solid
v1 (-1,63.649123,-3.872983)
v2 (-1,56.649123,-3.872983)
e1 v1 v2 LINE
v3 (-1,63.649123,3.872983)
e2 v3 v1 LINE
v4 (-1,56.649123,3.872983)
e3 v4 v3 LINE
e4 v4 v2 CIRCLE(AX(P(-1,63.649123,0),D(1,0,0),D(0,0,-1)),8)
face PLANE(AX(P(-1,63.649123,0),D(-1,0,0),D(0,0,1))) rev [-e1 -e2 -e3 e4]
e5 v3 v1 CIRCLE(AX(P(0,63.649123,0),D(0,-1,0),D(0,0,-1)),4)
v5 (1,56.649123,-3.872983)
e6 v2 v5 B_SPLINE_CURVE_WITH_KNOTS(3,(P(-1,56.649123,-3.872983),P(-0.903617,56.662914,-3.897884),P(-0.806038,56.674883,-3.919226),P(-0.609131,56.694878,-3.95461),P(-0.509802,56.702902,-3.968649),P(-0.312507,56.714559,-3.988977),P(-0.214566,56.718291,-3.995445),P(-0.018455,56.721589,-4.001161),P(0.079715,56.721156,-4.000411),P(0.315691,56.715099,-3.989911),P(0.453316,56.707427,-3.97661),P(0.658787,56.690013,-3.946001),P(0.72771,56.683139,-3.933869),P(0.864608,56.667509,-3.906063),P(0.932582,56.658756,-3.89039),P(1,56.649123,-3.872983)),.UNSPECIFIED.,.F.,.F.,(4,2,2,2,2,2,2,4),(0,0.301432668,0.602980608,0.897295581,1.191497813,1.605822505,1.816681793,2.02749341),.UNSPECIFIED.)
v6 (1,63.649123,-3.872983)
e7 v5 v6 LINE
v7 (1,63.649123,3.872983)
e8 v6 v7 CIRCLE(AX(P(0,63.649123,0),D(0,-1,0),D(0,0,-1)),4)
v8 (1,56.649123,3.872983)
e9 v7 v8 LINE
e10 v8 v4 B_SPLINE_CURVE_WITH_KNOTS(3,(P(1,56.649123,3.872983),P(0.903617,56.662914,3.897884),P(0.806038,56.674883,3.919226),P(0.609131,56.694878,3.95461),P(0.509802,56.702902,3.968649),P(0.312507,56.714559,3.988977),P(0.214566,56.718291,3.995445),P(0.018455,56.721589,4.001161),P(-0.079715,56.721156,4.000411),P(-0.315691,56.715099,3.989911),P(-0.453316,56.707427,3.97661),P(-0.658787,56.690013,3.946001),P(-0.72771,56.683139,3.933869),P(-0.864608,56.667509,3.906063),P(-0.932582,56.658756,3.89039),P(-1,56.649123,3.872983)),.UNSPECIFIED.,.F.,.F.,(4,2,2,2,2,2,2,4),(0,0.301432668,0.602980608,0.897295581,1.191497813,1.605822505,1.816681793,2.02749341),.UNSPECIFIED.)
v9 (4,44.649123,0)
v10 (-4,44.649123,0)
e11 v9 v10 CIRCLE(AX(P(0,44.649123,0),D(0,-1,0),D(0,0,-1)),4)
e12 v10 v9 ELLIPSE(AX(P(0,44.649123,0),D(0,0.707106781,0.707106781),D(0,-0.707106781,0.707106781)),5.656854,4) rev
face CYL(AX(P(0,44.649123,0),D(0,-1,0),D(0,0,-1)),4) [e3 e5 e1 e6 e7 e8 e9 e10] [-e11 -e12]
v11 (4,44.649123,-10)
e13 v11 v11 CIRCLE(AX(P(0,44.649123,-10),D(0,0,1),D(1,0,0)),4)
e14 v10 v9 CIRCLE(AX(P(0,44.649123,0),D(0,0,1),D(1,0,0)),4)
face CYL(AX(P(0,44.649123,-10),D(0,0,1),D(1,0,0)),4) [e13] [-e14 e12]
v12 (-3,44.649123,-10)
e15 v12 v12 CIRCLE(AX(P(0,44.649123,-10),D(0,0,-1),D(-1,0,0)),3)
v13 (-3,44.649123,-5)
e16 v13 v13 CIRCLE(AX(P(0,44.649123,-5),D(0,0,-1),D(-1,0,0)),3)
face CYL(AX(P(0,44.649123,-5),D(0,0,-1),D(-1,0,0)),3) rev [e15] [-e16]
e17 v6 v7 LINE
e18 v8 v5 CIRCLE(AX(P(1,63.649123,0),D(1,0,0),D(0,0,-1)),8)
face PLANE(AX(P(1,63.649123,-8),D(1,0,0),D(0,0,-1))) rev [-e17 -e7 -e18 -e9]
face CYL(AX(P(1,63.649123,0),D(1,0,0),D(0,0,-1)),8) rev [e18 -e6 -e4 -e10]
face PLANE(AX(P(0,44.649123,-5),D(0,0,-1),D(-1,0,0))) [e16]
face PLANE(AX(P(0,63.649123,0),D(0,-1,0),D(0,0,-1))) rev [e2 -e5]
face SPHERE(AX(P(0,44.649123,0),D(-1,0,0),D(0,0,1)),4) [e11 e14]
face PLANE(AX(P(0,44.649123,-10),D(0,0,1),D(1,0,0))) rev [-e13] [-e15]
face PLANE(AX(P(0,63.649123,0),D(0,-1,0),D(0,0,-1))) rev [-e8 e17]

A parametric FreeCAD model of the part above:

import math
import FreeCAD as App
import Part
import Sketcher
Q = App.Units.Quantity


def add_polygon(sketch, points):
    """Adds a closed chain of lines whose ends are joined by coincident constraints."""
    first, n = sketch.GeometryCount, len(points)
    for a, b in zip(points, points[1:] + points[:1]):
        sketch.addGeometry(Part.LineSegment(App.Vector(*a, 0), App.Vector(*b, 0)), False)
    for i in range(n):
        sketch.addConstraint(Sketcher.Constraint("Coincident", first + i, 2, first + (i + 1) % n, 1))

doc = App.newDocument("Part")
params = doc.addObject("Spreadsheet::Sheet", "Params")
for row, (alias, value) in enumerate([
    ("sketch1_diameter", "8 mm"),
    ("pad1_length", "10 mm"),
    ("sketch2_diameter", "6 mm"),
    ("pocket1_length", "5 mm"),
    ("sketch3_width", "19 mm"),
    ("sketch3_height", "4 mm"),
    ("revolution_angle", "360 deg"),
    ("sketch4_width", "2 mm"),
    ("sketch4_height", "8 mm"),
    ("groove_angle", "360 deg"),
    ("sketch5_radius", "4 mm"),
    ("revolution2_angle", "360 deg"),
], start=1):
    params.set(f"A{row}", alias)
    params.set(f"B{row}", "=" + value)
    params.setAlias(f"B{row}", alias)

body = doc.addObject("PartDesign::Body", "Body")

sketch1 = body.newObject("Sketcher::SketchObject", "Sketch")
sketch1.AttachmentSupport = (doc.getObject("XY_Plane"), [""])
sketch1.MapMode = "FlatFace"
sketch1.addGeometry(Part.Circle(App.Vector(0, 44.6, 0), App.Vector(0, 0, 1), 4), False)
sketch1.addConstraint(Sketcher.Constraint("PointOnObject", 0, 3, -2))
sketch1.addConstraint(Sketcher.Constraint("Diameter", 0, Q("8 mm")))
sketch1.addConstraint(Sketcher.Constraint("DistanceY", -1, 1, 0, 3, Q("44.649123 mm")))
sketch1.setExpression("Constraints[1]", "Params.sketch1_diameter")
pad1 = body.newObject("PartDesign::Pad", "Pad")
pad1.Profile = sketch1
pad1.setExpression("Length", "Params.pad1_length")
pad1.Reversed = True

sketch2 = body.newObject("Sketcher::SketchObject", "Sketch001")
sketch2.AttachmentSupport = (doc.getObject("XY_Plane"), [""])
sketch2.MapMode = "FlatFace"
sketch2.AttachmentOffset = App.Placement(App.Vector(0, 0, -10), App.Rotation())
sketch2.addGeometry(Part.Circle(App.Vector(0, 44.6, 0), App.Vector(0, 0, 1), 3), False)
sketch2.addConstraint(Sketcher.Constraint("PointOnObject", 0, 3, -2))
sketch2.addConstraint(Sketcher.Constraint("Diameter", 0, Q("6 mm")))
sketch2.addConstraint(Sketcher.Constraint("DistanceY", -1, 1, 0, 3, Q("44.649123 mm")))
sketch2.setExpression("Constraints[1]", "Params.sketch2_diameter")
pocket1 = body.newObject("PartDesign::Pocket", "Pocket")
pocket1.Profile = sketch2
pocket1.setExpression("Length", "Params.pocket1_length")
pocket1.Reversed = True

sketch3 = body.newObject("Sketcher::SketchObject", "Sketch002")
sketch3.AttachmentSupport = (doc.getObject("YZ_Plane"), [""])
sketch3.MapMode = "FlatFace"
add_polygon(sketch3, [(63.6, 4), (44.6, 4), (44.6, 0), (63.6, 0)])
sketch3.addConstraint(Sketcher.Constraint("Horizontal", 0))
sketch3.addConstraint(Sketcher.Constraint("Vertical", 1))
sketch3.addConstraint(Sketcher.Constraint("Horizontal", 2))
sketch3.addConstraint(Sketcher.Constraint("Vertical", 3))
sketch3.addConstraint(Sketcher.Constraint("PointOnObject", 1, 2, -1))
sketch3.addConstraint(Sketcher.Constraint("DistanceX", 0, 2, 0, 1, Q("19 mm")))
sketch3.addConstraint(Sketcher.Constraint("DistanceY", 1, 2, 1, 1, Q("4 mm")))
sketch3.addConstraint(Sketcher.Constraint("DistanceX", -1, 1, 0, 2, Q("44.649123 mm")))
sketch3.setExpression("Constraints[9]", "Params.sketch3_width")
sketch3.setExpression("Constraints[10]", "Params.sketch3_height")
revolution = body.newObject("PartDesign::Revolution", "Revolution")
revolution.Profile = sketch3
revolution.ReferenceAxis = (sketch3, ["H_Axis"])
revolution.setExpression("Angle", "Params.revolution_angle")

sketch4 = body.newObject("Sketcher::SketchObject", "Sketch003")
sketch4.AttachmentSupport = (doc.getObject("XZ_Plane"), [""])
sketch4.MapMode = "FlatFace"
sketch4.AttachmentOffset = App.Placement(App.Vector(0, 0, -63.649123), App.Rotation())
add_polygon(sketch4, [(-1, -8), (-1, 0), (1, 0), (1, -8)])
sketch4.addConstraint(Sketcher.Constraint("Vertical", 0))
sketch4.addConstraint(Sketcher.Constraint("Horizontal", 1))
sketch4.addConstraint(Sketcher.Constraint("Vertical", 2))
sketch4.addConstraint(Sketcher.Constraint("Horizontal", 3))
sketch4.addConstraint(Sketcher.Constraint("Symmetric", 0, 2, 1, 2, -1, 1))
sketch4.addConstraint(Sketcher.Constraint("DistanceX", 1, 1, 1, 2, Q("2 mm")))
sketch4.addConstraint(Sketcher.Constraint("DistanceY", 0, 1, 0, 2, Q("8 mm")))
sketch4.setExpression("Constraints[9]", "Params.sketch4_width")
sketch4.setExpression("Constraints[10]", "Params.sketch4_height")
groove = body.newObject("PartDesign::Groove", "Groove")
groove.Profile = sketch4
groove.ReferenceAxis = (sketch4, ["H_Axis"])
groove.setExpression("Angle", "Params.groove_angle")

sketch5 = body.newObject("Sketcher::SketchObject", "Sketch004")
sketch5.AttachmentSupport = (doc.getObject("XZ_Plane"), [""])
sketch5.MapMode = "FlatFace"
sketch5.AttachmentOffset = App.Placement(App.Vector(0, 0, -44.649123), App.Rotation())
sketch5.addGeometry(Part.LineSegment(App.Vector(-4, 0, 0), App.Vector(4, 0, 0)), False)
sketch5.addGeometry(Part.ArcOfCircle(Part.Circle(App.Vector(0, 0, 0), App.Vector(0, 0, 1), 4), math.radians(0), math.radians(180)), False)
sketch5.addConstraint(Sketcher.Constraint("Coincident", 0, 1, 1, 2))
sketch5.addConstraint(Sketcher.Constraint("Coincident", 1, 1, 0, 2))
sketch5.addConstraint(Sketcher.Constraint("Horizontal", 0))
sketch5.addConstraint(Sketcher.Constraint("Coincident", 1, 3, -1, 1))
sketch5.addConstraint(Sketcher.Constraint("PointOnObject", 0, 1, -1))
sketch5.addConstraint(Sketcher.Constraint("Radius", 1, Q("4 mm")))
sketch5.setExpression("Constraints[5]", "Params.sketch5_radius")
revolution2 = body.newObject("PartDesign::Revolution", "Revolution001")
revolution2.Profile = sketch5
revolution2.ReferenceAxis = (sketch5, ["H_Axis"])
revolution2.setExpression("Angle", "Params.revolution2_angle")

doc.recompute()
